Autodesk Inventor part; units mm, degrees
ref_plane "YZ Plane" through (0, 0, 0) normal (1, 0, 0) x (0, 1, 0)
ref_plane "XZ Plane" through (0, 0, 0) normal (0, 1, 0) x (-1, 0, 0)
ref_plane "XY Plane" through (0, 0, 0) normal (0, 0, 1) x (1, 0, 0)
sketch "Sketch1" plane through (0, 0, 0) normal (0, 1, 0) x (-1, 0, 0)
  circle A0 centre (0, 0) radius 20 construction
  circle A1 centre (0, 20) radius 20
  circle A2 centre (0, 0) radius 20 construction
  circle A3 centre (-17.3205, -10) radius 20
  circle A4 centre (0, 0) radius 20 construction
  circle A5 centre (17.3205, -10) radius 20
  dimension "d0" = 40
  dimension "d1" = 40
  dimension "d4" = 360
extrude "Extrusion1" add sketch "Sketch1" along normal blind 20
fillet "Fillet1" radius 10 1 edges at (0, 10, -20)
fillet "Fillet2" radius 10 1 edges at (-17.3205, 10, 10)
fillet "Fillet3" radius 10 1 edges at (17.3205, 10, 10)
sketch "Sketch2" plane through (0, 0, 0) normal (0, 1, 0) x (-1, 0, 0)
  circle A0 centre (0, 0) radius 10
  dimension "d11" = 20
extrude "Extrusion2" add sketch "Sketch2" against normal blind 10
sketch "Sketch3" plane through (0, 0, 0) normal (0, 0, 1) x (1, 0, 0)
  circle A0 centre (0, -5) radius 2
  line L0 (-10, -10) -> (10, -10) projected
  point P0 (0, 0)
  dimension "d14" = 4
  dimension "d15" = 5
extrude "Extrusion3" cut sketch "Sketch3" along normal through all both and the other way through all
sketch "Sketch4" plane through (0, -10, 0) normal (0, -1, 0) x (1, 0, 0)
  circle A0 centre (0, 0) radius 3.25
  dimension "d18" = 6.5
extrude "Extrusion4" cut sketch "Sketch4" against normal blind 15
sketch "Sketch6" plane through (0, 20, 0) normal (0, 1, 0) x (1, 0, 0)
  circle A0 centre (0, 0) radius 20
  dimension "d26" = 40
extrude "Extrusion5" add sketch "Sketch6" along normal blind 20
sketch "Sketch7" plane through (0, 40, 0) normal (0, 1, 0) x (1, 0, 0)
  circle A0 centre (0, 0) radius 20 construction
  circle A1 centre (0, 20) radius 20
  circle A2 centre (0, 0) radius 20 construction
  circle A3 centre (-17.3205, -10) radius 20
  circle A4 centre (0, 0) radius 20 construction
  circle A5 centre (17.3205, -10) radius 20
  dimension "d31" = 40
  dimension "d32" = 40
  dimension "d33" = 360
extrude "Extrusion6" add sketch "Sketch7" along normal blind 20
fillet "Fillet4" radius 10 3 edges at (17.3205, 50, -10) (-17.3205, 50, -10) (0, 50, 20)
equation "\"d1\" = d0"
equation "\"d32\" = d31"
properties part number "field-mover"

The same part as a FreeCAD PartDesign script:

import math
import FreeCAD as App
import Part
import Sketcher
from FreeCAD import Vector
Q = App.Units.Quantity


def edges_at(feature, points):
    """Names of the edges that pass closest to the given points."""
    edges = feature.Shape.Edges
    near = lambda p: min(range(len(edges)), key=lambda i: edges[i].distToShape(Part.Vertex(*p))[0])
    return sorted({f"Edge{near(p) + 1}" for p in points})

doc = App.newDocument("Part")
body = doc.addObject("PartDesign::Body", "Body")

sketch1 = doc.addObject("Sketcher::SketchObject", "Sketch")
body.addObject(sketch1)
sketch1.AttachmentSupport = (doc.XZ_Plane, [""])
sketch1.MapMode = "FlatFace"
sketch1.addGeometry([
    Part.ArcOfCircle(Part.Circle(Vector(0, 20, 0), Vector(0, 0, 1), 20), math.radians(-30), math.radians(210)),
    Part.ArcOfCircle(Part.Circle(Vector(17.3205, -10, 0), Vector(0, 0, 1), 20), math.radians(-149.999954), math.radians(89.999977)),
    Part.ArcOfCircle(Part.Circle(Vector(-17.3205, -10, 0), Vector(0, 0, 1), 20), math.radians(90.000023), math.radians(329.999954)),
], False)
sketch1.addConstraint([
    Sketcher.Constraint("Coincident", 0, 1, 1, 2),
    Sketcher.Constraint("Coincident", 1, 1, 2, 2),
    Sketcher.Constraint("Coincident", 2, 1, 0, 2),
    Sketcher.Constraint("Equal", 0, 1),
    Sketcher.Constraint("Equal", 1, 2),
    Sketcher.Constraint("Symmetric", 1, 3, 2, 3, -2),
    Sketcher.Constraint("PointOnObject", 0, 3, -2),
    Sketcher.Constraint("Vertical", 1, 3, 0, 1),
    Sketcher.Constraint("Radius", 0, Q("20 mm")),
    Sketcher.Constraint("DistanceY", 1, 1, 0, 3, Q("40 mm")),
    Sketcher.Constraint("DistanceY", -1, 1, 0, 3, Q("20 mm")),
])
pad1 = doc.addObject("PartDesign::Pad", "Pad")
body.addObject(pad1)
pad1.Profile = sketch1
pad1.Length = 20
pad1.Reversed = True
doc.recompute()

fillet = doc.addObject("PartDesign::Fillet", "Fillet")
body.addObject(fillet)
fillet.Base = (pad1, edges_at(pad1, [(0, 10, -20)]))
fillet.Radius = 10
doc.recompute()

fillet2 = doc.addObject("PartDesign::Fillet", "Fillet001")
body.addObject(fillet2)
fillet2.Base = (fillet, edges_at(fillet, [(-17.32, 10, 10)]))
fillet2.Radius = 10
doc.recompute()

fillet3 = doc.addObject("PartDesign::Fillet", "Fillet002")
body.addObject(fillet3)
fillet3.Base = (fillet2, edges_at(fillet2, [(17.32, 10, 10)]))
fillet3.Radius = 10

sketch2 = doc.addObject("Sketcher::SketchObject", "Sketch001")
body.addObject(sketch2)
sketch2.AttachmentSupport = (doc.XZ_Plane, [""])
sketch2.MapMode = "FlatFace"
sketch2.addGeometry(Part.Circle(Vector(0, 0, 0), Vector(0, 0, 1), 10), False)
sketch2.addConstraint([
    Sketcher.Constraint("Coincident", 0, 3, -1, 1),
    Sketcher.Constraint("Diameter", 0, Q("20 mm")),
])
pad2 = doc.addObject("PartDesign::Pad", "Pad001")
body.addObject(pad2)
pad2.Profile = sketch2
pad2.Length = 10

sketch3 = doc.addObject("Sketcher::SketchObject", "Sketch002")
body.addObject(sketch3)
sketch3.AttachmentSupport = (doc.XY_Plane, [""])
sketch3.MapMode = "FlatFace"
sketch3.addGeometry(Part.Circle(Vector(0, -5, 0), Vector(0, 0, 1), 2), False)
sketch3.addConstraint([
    Sketcher.Constraint("PointOnObject", 0, 3, -2),
    Sketcher.Constraint("Diameter", 0, Q("4 mm")),
    Sketcher.Constraint("DistanceY", 0, 3, -1, 1, Q("5 mm")),
])
pocket1 = doc.addObject("PartDesign::Pocket", "Pocket")
body.addObject(pocket1)
pocket1.Profile = sketch3
pocket1.Type = "ThroughAll"
pocket1.Midplane = True

sketch4 = doc.addObject("Sketcher::SketchObject", "Sketch003")
body.addObject(sketch4)
sketch4.AttachmentSupport = (doc.XZ_Plane, [""])
sketch4.MapMode = "FlatFace"
sketch4.AttachmentOffset = App.Placement(Vector(0, 0, 10), App.Rotation())
sketch4.addGeometry(Part.Circle(Vector(0, 0, 0), Vector(0, 0, 1), 3.25), False)
sketch4.addConstraint([
    Sketcher.Constraint("Coincident", 0, 3, -1, 1),
    Sketcher.Constraint("Diameter", 0, Q("6.5 mm")),
])
pocket2 = doc.addObject("PartDesign::Pocket", "Pocket001")
body.addObject(pocket2)
pocket2.Profile = sketch4
pocket2.Length = 15

sketch5 = doc.addObject("Sketcher::SketchObject", "Sketch004")
body.addObject(sketch5)
sketch5.AttachmentSupport = (doc.XZ_Plane, [""])
sketch5.MapMode = "FlatFace"
sketch5.AttachmentOffset = App.Placement(Vector(0, 0, -20), App.Rotation())
sketch5.addGeometry(Part.Circle(Vector(0, 0, 0), Vector(0, 0, 1), 20), False)
sketch5.addConstraint([
    Sketcher.Constraint("Coincident", 0, 3, -1, 1),
    Sketcher.Constraint("Diameter", 0, Q("40 mm")),
])
pad3 = doc.addObject("PartDesign::Pad", "Pad002")
body.addObject(pad3)
pad3.Profile = sketch5
pad3.Length = 20
pad3.Reversed = True

sketch6 = doc.addObject("Sketcher::SketchObject", "Sketch005")
body.addObject(sketch6)
sketch6.AttachmentSupport = (doc.XZ_Plane, [""])
sketch6.MapMode = "FlatFace"
sketch6.AttachmentOffset = App.Placement(Vector(0, 0, -40), App.Rotation())
sketch6.addGeometry([
    Part.ArcOfCircle(Part.Circle(Vector(0, -20, 0), Vector(0, 0, 1), 20), math.radians(150), math.radians(390)),
    Part.ArcOfCircle(Part.Circle(Vector(-17.3205, 10, 0), Vector(0, 0, 1), 20), math.radians(30.000046), math.radians(269.999977)),
    Part.ArcOfCircle(Part.Circle(Vector(17.3205, 10, 0), Vector(0, 0, 1), 20), math.radians(-89.999977), math.radians(149.999954)),
], False)
sketch6.addConstraint([
    Sketcher.Constraint("Coincident", 0, 1, 1, 2),
    Sketcher.Constraint("Coincident", 1, 1, 2, 2),
    Sketcher.Constraint("Coincident", 2, 1, 0, 2),
    Sketcher.Constraint("Equal", 0, 1),
    Sketcher.Constraint("Equal", 1, 2),
    Sketcher.Constraint("Symmetric", 1, 3, 2, 3, -2),
    Sketcher.Constraint("PointOnObject", 0, 3, -2),
    Sketcher.Constraint("Vertical", 1, 3, 0, 1),
    Sketcher.Constraint("Radius", 0, Q("20 mm")),
    Sketcher.Constraint("DistanceY", 0, 3, 1, 1, Q("40 mm")),
    Sketcher.Constraint("DistanceY", 0, 3, -1, 1, Q("20 mm")),
])
pad4 = doc.addObject("PartDesign::Pad", "Pad003")
body.addObject(pad4)
pad4.Profile = sketch6
pad4.Length = 20
pad4.Reversed = True
doc.recompute()

fillet4 = doc.addObject("PartDesign::Fillet", "Fillet003")
body.addObject(fillet4)
fillet4.Base = (pad4, edges_at(pad4, [(17.32, 50, -10), (-17.32, 50, -10), (0, 50, 20)]))
fillet4.Radius = 10

doc.recompute()
